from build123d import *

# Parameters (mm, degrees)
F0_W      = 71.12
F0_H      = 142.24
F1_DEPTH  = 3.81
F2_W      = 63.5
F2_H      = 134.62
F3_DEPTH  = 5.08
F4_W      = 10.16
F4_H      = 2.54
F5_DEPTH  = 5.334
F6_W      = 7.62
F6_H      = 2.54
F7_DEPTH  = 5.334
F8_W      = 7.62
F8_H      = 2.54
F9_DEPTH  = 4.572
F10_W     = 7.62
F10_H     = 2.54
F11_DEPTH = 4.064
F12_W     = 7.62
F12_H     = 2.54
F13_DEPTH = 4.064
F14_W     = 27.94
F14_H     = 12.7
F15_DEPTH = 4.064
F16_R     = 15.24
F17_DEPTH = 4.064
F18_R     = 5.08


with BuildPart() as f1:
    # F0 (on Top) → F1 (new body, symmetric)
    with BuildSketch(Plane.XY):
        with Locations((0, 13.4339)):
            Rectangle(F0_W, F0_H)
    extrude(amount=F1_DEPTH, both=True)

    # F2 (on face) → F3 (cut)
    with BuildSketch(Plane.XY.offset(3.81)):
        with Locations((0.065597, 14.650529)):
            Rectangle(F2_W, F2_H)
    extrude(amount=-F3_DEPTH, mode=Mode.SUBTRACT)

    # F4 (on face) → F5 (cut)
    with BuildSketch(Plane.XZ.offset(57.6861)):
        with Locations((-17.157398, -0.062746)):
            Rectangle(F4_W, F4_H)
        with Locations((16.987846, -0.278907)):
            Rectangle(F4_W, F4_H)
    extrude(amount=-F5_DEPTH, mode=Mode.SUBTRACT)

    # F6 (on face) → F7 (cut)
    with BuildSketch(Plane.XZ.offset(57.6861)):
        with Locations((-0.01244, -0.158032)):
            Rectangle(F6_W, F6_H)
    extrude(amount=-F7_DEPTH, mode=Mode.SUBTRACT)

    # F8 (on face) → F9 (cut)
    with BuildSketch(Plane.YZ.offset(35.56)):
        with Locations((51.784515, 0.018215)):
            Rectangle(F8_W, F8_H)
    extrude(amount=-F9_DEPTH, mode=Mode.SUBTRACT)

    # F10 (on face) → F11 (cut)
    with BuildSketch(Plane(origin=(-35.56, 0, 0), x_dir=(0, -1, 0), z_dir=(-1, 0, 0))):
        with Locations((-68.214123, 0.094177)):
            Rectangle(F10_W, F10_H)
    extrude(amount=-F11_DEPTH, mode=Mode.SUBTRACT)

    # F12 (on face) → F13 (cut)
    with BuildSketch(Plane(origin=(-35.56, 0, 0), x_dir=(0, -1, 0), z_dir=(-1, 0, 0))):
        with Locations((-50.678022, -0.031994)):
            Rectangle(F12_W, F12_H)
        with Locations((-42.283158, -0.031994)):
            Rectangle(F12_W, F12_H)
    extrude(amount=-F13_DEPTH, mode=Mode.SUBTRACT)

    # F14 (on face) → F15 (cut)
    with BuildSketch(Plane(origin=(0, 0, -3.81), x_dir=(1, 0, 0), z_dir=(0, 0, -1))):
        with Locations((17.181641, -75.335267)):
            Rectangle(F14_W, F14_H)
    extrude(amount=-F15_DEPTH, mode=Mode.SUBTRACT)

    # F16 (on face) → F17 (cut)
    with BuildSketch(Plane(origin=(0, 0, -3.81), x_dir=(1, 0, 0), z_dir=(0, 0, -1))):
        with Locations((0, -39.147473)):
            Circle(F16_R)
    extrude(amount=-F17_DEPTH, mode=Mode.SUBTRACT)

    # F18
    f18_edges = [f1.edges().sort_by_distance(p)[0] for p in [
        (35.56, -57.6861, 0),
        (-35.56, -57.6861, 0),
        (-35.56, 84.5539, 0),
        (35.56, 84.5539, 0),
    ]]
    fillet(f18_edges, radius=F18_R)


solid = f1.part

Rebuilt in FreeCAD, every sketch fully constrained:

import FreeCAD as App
import Part
import Sketcher
Q = App.Units.Quantity


def edges_at(feature, points):
    """Names of the edges that pass closest to the given points."""
    edges = feature.Shape.Edges
    near = lambda p: min(range(len(edges)), key=lambda i: edges[i].distToShape(Part.Vertex(*p))[0])
    return sorted({f"Edge{near(p) + 1}" for p in points})

doc = App.newDocument("Part")
body = doc.addObject("PartDesign::Body", "Body")

sketch1 = body.newObject("Sketcher::SketchObject", "Sketch")
sketch1.AttachmentSupport = (doc.getObject("XY_Plane"), [""])
sketch1.MapMode = "FlatFace"
sketch1.addGeometry(Part.LineSegment(App.Vector(-35.56, 84.5539, 0), App.Vector(-35.56, -57.6861, 0)), False)
sketch1.addGeometry(Part.LineSegment(App.Vector(-35.56, -57.6861, 0), App.Vector(35.56, -57.6861, 0)), False)
sketch1.addGeometry(Part.LineSegment(App.Vector(35.56, -57.6861, 0), App.Vector(35.56, 84.5539, 0)), False)
sketch1.addGeometry(Part.LineSegment(App.Vector(35.56, 84.5539, 0), App.Vector(-35.56, 84.5539, 0)), False)
sketch1.addConstraint(Sketcher.Constraint("Coincident", 0, 2, 1, 1))
sketch1.addConstraint(Sketcher.Constraint("Coincident", 1, 2, 2, 1))
sketch1.addConstraint(Sketcher.Constraint("Coincident", 2, 2, 3, 1))
sketch1.addConstraint(Sketcher.Constraint("Coincident", 3, 2, 0, 1))
sketch1.addConstraint(Sketcher.Constraint("Vertical", 0))
sketch1.addConstraint(Sketcher.Constraint("Horizontal", 1))
sketch1.addConstraint(Sketcher.Constraint("Vertical", 2))
sketch1.addConstraint(Sketcher.Constraint("Horizontal", 3))
sketch1.addConstraint(Sketcher.Constraint("DistanceX", 1, 1, 1, 2, Q("2.8 in")))
sketch1.addConstraint(Sketcher.Constraint("DistanceY", 0, 2, 0, 1, Q("5.6 in")))
sketch1.addConstraint(Sketcher.Constraint("DistanceX", 0, 2, -1, 1, Q("1.4 in")))
sketch1.addConstraint(Sketcher.Constraint("DistanceY", 0, 2, -1, 1, 57.6861))
pad1 = body.newObject("PartDesign::Pad", "Pad")
pad1.Profile = sketch1
pad1.Length = Q("0.3 in")
pad1.Midplane = True

sketch2 = body.newObject("Sketcher::SketchObject", "Sketch001")
sketch2.AttachmentSupport = (doc.getObject("XY_Plane"), [""])
sketch2.MapMode = "FlatFace"
sketch2.AttachmentOffset = App.Placement(App.Vector(0, 0, 0.15 * 25.4), App.Rotation())
sketch2.addGeometry(Part.LineSegment(App.Vector(-31.684403, 81.960529, 0), App.Vector(-31.684403, -52.659471, 0)), False)
sketch2.addGeometry(Part.LineSegment(App.Vector(-31.684403, -52.659471, 0), App.Vector(31.815597, -52.659471, 0)), False)
sketch2.addGeometry(Part.LineSegment(App.Vector(31.815597, -52.659471, 0), App.Vector(31.815597, 81.960529, 0)), False)
sketch2.addGeometry(Part.LineSegment(App.Vector(31.815597, 81.960529, 0), App.Vector(-31.684403, 81.960529, 0)), False)
sketch2.addConstraint(Sketcher.Constraint("Coincident", 0, 2, 1, 1))
sketch2.addConstraint(Sketcher.Constraint("Coincident", 1, 2, 2, 1))
sketch2.addConstraint(Sketcher.Constraint("Coincident", 2, 2, 3, 1))
sketch2.addConstraint(Sketcher.Constraint("Coincident", 3, 2, 0, 1))
sketch2.addConstraint(Sketcher.Constraint("Vertical", 0))
sketch2.addConstraint(Sketcher.Constraint("Horizontal", 1))
sketch2.addConstraint(Sketcher.Constraint("Vertical", 2))
sketch2.addConstraint(Sketcher.Constraint("Horizontal", 3))
sketch2.addConstraint(Sketcher.Constraint("DistanceX", 1, 1, 1, 2, Q("2.5 in")))
sketch2.addConstraint(Sketcher.Constraint("DistanceY", 0, 2, 0, 1, Q("5.3 in")))
sketch2.addConstraint(Sketcher.Constraint("DistanceY", 0, 2, -1, 1, 52.659471))
sketch2.addConstraint(Sketcher.Constraint("DistanceX", 0, 2, -1, 1, 31.684403))
pocket1 = body.newObject("PartDesign::Pocket", "Pocket")
pocket1.Profile = sketch2
pocket1.Length = Q("0.2 in")

sketch3 = body.newObject("Sketcher::SketchObject", "Sketch002")
sketch3.AttachmentSupport = (doc.getObject("XZ_Plane"), [""])
sketch3.MapMode = "FlatFace"
sketch3.AttachmentOffset = App.Placement(App.Vector(0, 0, 57.6861), App.Rotation())
sketch3.addGeometry(Part.LineSegment(App.Vector(-22.237398, 1.207254, 0), App.Vector(-22.237398, -1.332746, 0)), False)
sketch3.addGeometry(Part.LineSegment(App.Vector(-22.237398, -1.332746, 0), App.Vector(-12.077398, -1.332746, 0)), False)
sketch3.addGeometry(Part.LineSegment(App.Vector(-12.077398, -1.332746, 0), App.Vector(-12.077398, 1.207254, 0)), False)
sketch3.addGeometry(Part.LineSegment(App.Vector(-12.077398, 1.207254, 0), App.Vector(-22.237398, 1.207254, 0)), False)
sketch3.addGeometry(Part.LineSegment(App.Vector(11.907846, 0.991093, 0), App.Vector(11.907846, -1.548907, 0)), False)
sketch3.addGeometry(Part.LineSegment(App.Vector(11.907846, -1.548907, 0), App.Vector(22.067846, -1.548907, 0)), False)
sketch3.addGeometry(Part.LineSegment(App.Vector(22.067846, -1.548907, 0), App.Vector(22.067846, 0.991093, 0)), False)
sketch3.addGeometry(Part.LineSegment(App.Vector(22.067846, 0.991093, 0), App.Vector(11.907846, 0.991093, 0)), False)
sketch3.addConstraint(Sketcher.Constraint("Coincident", 0, 2, 1, 1))
sketch3.addConstraint(Sketcher.Constraint("Coincident", 1, 2, 2, 1))
sketch3.addConstraint(Sketcher.Constraint("Coincident", 2, 2, 3, 1))
sketch3.addConstraint(Sketcher.Constraint("Coincident", 3, 2, 0, 1))
sketch3.addConstraint(Sketcher.Constraint("Coincident", 4, 2, 5, 1))
sketch3.addConstraint(Sketcher.Constraint("Coincident", 5, 2, 6, 1))
sketch3.addConstraint(Sketcher.Constraint("Coincident", 6, 2, 7, 1))
sketch3.addConstraint(Sketcher.Constraint("Coincident", 7, 2, 4, 1))
sketch3.addConstraint(Sketcher.Constraint("Vertical", 0))
sketch3.addConstraint(Sketcher.Constraint("Horizontal", 1))
sketch3.addConstraint(Sketcher.Constraint("Vertical", 2))
sketch3.addConstraint(Sketcher.Constraint("Horizontal", 3))
sketch3.addConstraint(Sketcher.Constraint("Vertical", 4))
sketch3.addConstraint(Sketcher.Constraint("Horizontal", 5))
sketch3.addConstraint(Sketcher.Constraint("Vertical", 6))
sketch3.addConstraint(Sketcher.Constraint("Horizontal", 7))
sketch3.addConstraint(Sketcher.Constraint("Equal", 3, 5))
sketch3.addConstraint(Sketcher.Constraint("Equal", 2, 4))
sketch3.addConstraint(Sketcher.Constraint("DistanceX", 1, 1, 1, 2, Q("0.4 in")))
sketch3.addConstraint(Sketcher.Constraint("DistanceY", 0, 2, 0, 1, Q("0.1 in")))
sketch3.addConstraint(Sketcher.Constraint("DistanceY", 4, 2, 1, 2, 0.216161))
sketch3.addConstraint(Sketcher.Constraint("DistanceX", 0, 2, -1, 1, 22.237398))
sketch3.addConstraint(Sketcher.Constraint("DistanceY", 0, 2, -1, 1, 1.332746))
sketch3.addConstraint(Sketcher.Constraint("DistanceX", -1, 1, 4, 2, 11.907846))
pocket2 = body.newObject("PartDesign::Pocket", "Pocket001")
pocket2.Profile = sketch3
pocket2.Length = Q("0.21 in")

sketch4 = body.newObject("Sketcher::SketchObject", "Sketch003")
sketch4.AttachmentSupport = (doc.getObject("XZ_Plane"), [""])
sketch4.MapMode = "FlatFace"
sketch4.AttachmentOffset = App.Placement(App.Vector(0, 0, 57.6861), App.Rotation())
sketch4.addGeometry(Part.LineSegment(App.Vector(-3.82244, 1.111968, 0), App.Vector(-3.82244, -1.428032, 0)), False)
sketch4.addGeometry(Part.LineSegment(App.Vector(-3.82244, -1.428032, 0), App.Vector(3.79756, -1.428032, 0)), False)
sketch4.addGeometry(Part.LineSegment(App.Vector(3.79756, -1.428032, 0), App.Vector(3.79756, 1.111968, 0)), False)
sketch4.addGeometry(Part.LineSegment(App.Vector(3.79756, 1.111968, 0), App.Vector(-3.82244, 1.111968, 0)), False)
sketch4.addConstraint(Sketcher.Constraint("Coincident", 0, 2, 1, 1))
sketch4.addConstraint(Sketcher.Constraint("Coincident", 1, 2, 2, 1))
sketch4.addConstraint(Sketcher.Constraint("Coincident", 2, 2, 3, 1))
sketch4.addConstraint(Sketcher.Constraint("Coincident", 3, 2, 0, 1))
sketch4.addConstraint(Sketcher.Constraint("Vertical", 0))
sketch4.addConstraint(Sketcher.Constraint("Horizontal", 1))
sketch4.addConstraint(Sketcher.Constraint("Vertical", 2))
sketch4.addConstraint(Sketcher.Constraint("Horizontal", 3))
sketch4.addConstraint(Sketcher.Constraint("DistanceX", 1, 1, 1, 2, Q("0.3 in")))
sketch4.addConstraint(Sketcher.Constraint("DistanceY", 0, 2, 0, 1, Q("0.1 in")))
sketch4.addConstraint(Sketcher.Constraint("DistanceX", 0, 2, -1, 1, 3.82244))
sketch4.addConstraint(Sketcher.Constraint("DistanceY", -1, 1, 2, 2, 1.111968))
pocket3 = body.newObject("PartDesign::Pocket", "Pocket002")
pocket3.Profile = sketch4
pocket3.Length = Q("0.21 in")

sketch5 = body.newObject("Sketcher::SketchObject", "Sketch004")
sketch5.AttachmentSupport = (doc.getObject("YZ_Plane"), [""])
sketch5.MapMode = "FlatFace"
sketch5.AttachmentOffset = App.Placement(App.Vector(0, 0, 1.4 * 25.4), App.Rotation())
sketch5.addGeometry(Part.LineSegment(App.Vector(47.974515, 1.288215, 0), App.Vector(47.974515, -1.251785, 0)), False)
sketch5.addGeometry(Part.LineSegment(App.Vector(47.974515, -1.251785, 0), App.Vector(55.594515, -1.251785, 0)), False)
sketch5.addGeometry(Part.LineSegment(App.Vector(55.594515, -1.251785, 0), App.Vector(55.594515, 1.288215, 0)), False)
sketch5.addGeometry(Part.LineSegment(App.Vector(55.594515, 1.288215, 0), App.Vector(47.974515, 1.288215, 0)), False)
sketch5.addConstraint(Sketcher.Constraint("Coincident", 0, 2, 1, 1))
sketch5.addConstraint(Sketcher.Constraint("Coincident", 1, 2, 2, 1))
sketch5.addConstraint(Sketcher.Constraint("Coincident", 2, 2, 3, 1))
sketch5.addConstraint(Sketcher.Constraint("Coincident", 3, 2, 0, 1))
sketch5.addConstraint(Sketcher.Constraint("Vertical", 0))
sketch5.addConstraint(Sketcher.Constraint("Horizontal", 1))
sketch5.addConstraint(Sketcher.Constraint("Vertical", 2))
sketch5.addConstraint(Sketcher.Constraint("Horizontal", 3))
sketch5.addConstraint(Sketcher.Constraint("DistanceX", 1, 1, 1, 2, Q("0.3 in")))
sketch5.addConstraint(Sketcher.Constraint("DistanceY", 0, 2, 0, 1, Q("0.1 in")))
sketch5.addConstraint(Sketcher.Constraint("DistanceX", -1, 1, 0, 2, 47.974515))
sketch5.addConstraint(Sketcher.Constraint("DistanceY", 0, 2, -1, 1, 1.251785))
pocket4 = body.newObject("PartDesign::Pocket", "Pocket003")
pocket4.Profile = sketch5
pocket4.Length = Q("0.18 in")

sketch6 = body.newObject("Sketcher::SketchObject", "Sketch005")
sketch6.AttachmentSupport = (doc.getObject("YZ_Plane"), [""])
sketch6.MapMode = "FlatFace"
sketch6.AttachmentOffset = App.Placement(App.Vector(0, 0, -1.4 * 25.4), App.Rotation())
sketch6.addGeometry(Part.LineSegment(App.Vector(72.024123, 1.364177, 0), App.Vector(72.024123, -1.175823, 0)), False)
sketch6.addGeometry(Part.LineSegment(App.Vector(72.024123, -1.175823, 0), App.Vector(64.404123, -1.175823, 0)), False)
sketch6.addGeometry(Part.LineSegment(App.Vector(64.404123, -1.175823, 0), App.Vector(64.404123, 1.364177, 0)), False)
sketch6.addGeometry(Part.LineSegment(App.Vector(64.404123, 1.364177, 0), App.Vector(72.024123, 1.364177, 0)), False)
sketch6.addConstraint(Sketcher.Constraint("Coincident", 0, 2, 1, 1))
sketch6.addConstraint(Sketcher.Constraint("Coincident", 1, 2, 2, 1))
sketch6.addConstraint(Sketcher.Constraint("Coincident", 2, 2, 3, 1))
sketch6.addConstraint(Sketcher.Constraint("Coincident", 3, 2, 0, 1))
sketch6.addConstraint(Sketcher.Constraint("Vertical", 0))
sketch6.addConstraint(Sketcher.Constraint("Horizontal", 1))
sketch6.addConstraint(Sketcher.Constraint("Vertical", 2))
sketch6.addConstraint(Sketcher.Constraint("Horizontal", 3))
sketch6.addConstraint(Sketcher.Constraint("DistanceX", 1, 2, 1, 1, Q("0.3 in")))
sketch6.addConstraint(Sketcher.Constraint("DistanceY", 0, 2, 0, 1, Q("0.1 in")))
sketch6.addConstraint(Sketcher.Constraint("DistanceX", -1, 1, 0, 2, 72.024123))
sketch6.addConstraint(Sketcher.Constraint("DistanceY", 0, 2, -1, 1, 1.175823))
pocket5 = body.newObject("PartDesign::Pocket", "Pocket004")
pocket5.Profile = sketch6
pocket5.Length = Q("0.16 in")
pocket5.Reversed = True

sketch7 = body.newObject("Sketcher::SketchObject", "Sketch006")
sketch7.AttachmentSupport = (doc.getObject("YZ_Plane"), [""])
sketch7.MapMode = "FlatFace"
sketch7.AttachmentOffset = App.Placement(App.Vector(0, 0, -1.4 * 25.4), App.Rotation())
sketch7.addGeometry(Part.LineSegment(App.Vector(54.488022, 1.238006, 0), App.Vector(54.488022, -1.301994, 0)), False)
sketch7.addGeometry(Part.LineSegment(App.Vector(54.488022, -1.301994, 0), App.Vector(46.868022, -1.301994, 0)), False)
sketch7.addGeometry(Part.LineSegment(App.Vector(46.868022, -1.301994, 0), App.Vector(46.868022, 1.238006, 0)), False)
sketch7.addGeometry(Part.LineSegment(App.Vector(46.868022, 1.238006, 0), App.Vector(54.488022, 1.238006, 0)), False)
sketch7.addGeometry(Part.LineSegment(App.Vector(46.093158, 1.238006, 0), App.Vector(46.093158, -1.301994, 0)), False)
sketch7.addGeometry(Part.LineSegment(App.Vector(46.093158, -1.301994, 0), App.Vector(38.473158, -1.301994, 0)), False)
sketch7.addGeometry(Part.LineSegment(App.Vector(38.473158, -1.301994, 0), App.Vector(38.473158, 1.238006, 0)), False)
sketch7.addGeometry(Part.LineSegment(App.Vector(38.473158, 1.238006, 0), App.Vector(46.093158, 1.238006, 0)), False)
sketch7.addConstraint(Sketcher.Constraint("Coincident", 0, 2, 1, 1))
sketch7.addConstraint(Sketcher.Constraint("Coincident", 1, 2, 2, 1))
sketch7.addConstraint(Sketcher.Constraint("Coincident", 2, 2, 3, 1))
sketch7.addConstraint(Sketcher.Constraint("Coincident", 3, 2, 0, 1))
sketch7.addConstraint(Sketcher.Constraint("Coincident", 4, 2, 5, 1))
sketch7.addConstraint(Sketcher.Constraint("Coincident", 5, 2, 6, 1))
sketch7.addConstraint(Sketcher.Constraint("Coincident", 6, 2, 7, 1))
sketch7.addConstraint(Sketcher.Constraint("Coincident", 7, 2, 4, 1))
sketch7.addConstraint(Sketcher.Constraint("Vertical", 0))
sketch7.addConstraint(Sketcher.Constraint("Horizontal", 1))
sketch7.addConstraint(Sketcher.Constraint("Vertical", 2))
sketch7.addConstraint(Sketcher.Constraint("Horizontal", 3))
sketch7.addConstraint(Sketcher.Constraint("Vertical", 4))
sketch7.addConstraint(Sketcher.Constraint("Horizontal", 5))
sketch7.addConstraint(Sketcher.Constraint("Vertical", 6))
sketch7.addConstraint(Sketcher.Constraint("Horizontal", 7))
sketch7.addConstraint(Sketcher.Constraint("Horizontal", 1, 2, 4, 2))
sketch7.addConstraint(Sketcher.Constraint("Horizontal", 3, 2, 6, 2))
sketch7.addConstraint(Sketcher.Constraint("Equal", 3, 5))
sketch7.addConstraint(Sketcher.Constraint("DistanceX", 1, 2, 1, 1, Q("0.3 in")))
sketch7.addConstraint(Sketcher.Constraint("DistanceY", 0, 2, 0, 1, Q("0.1 in")))
sketch7.addConstraint(Sketcher.Constraint("DistanceX", -1, 1, 4, 2, 46.093158))
sketch7.addConstraint(Sketcher.Constraint("DistanceX", -1, 1, 0, 2, 54.488022))
sketch7.addConstraint(Sketcher.Constraint("DistanceY", 0, 2, -1, 1, 1.301994))
pocket6 = body.newObject("PartDesign::Pocket", "Pocket005")
pocket6.Profile = sketch7
pocket6.Length = Q("0.16 in")
pocket6.Reversed = True

sketch8 = body.newObject("Sketcher::SketchObject", "Sketch007")
sketch8.AttachmentSupport = (doc.getObject("XY_Plane"), [""])
sketch8.MapMode = "FlatFace"
sketch8.AttachmentOffset = App.Placement(App.Vector(0, 0, -0.15 * 25.4), App.Rotation())
sketch8.addGeometry(Part.LineSegment(App.Vector(3.211641, 68.985267, 0), App.Vector(3.211641, 81.685267, 0)), False)
sketch8.addGeometry(Part.LineSegment(App.Vector(3.211641, 81.685267, 0), App.Vector(31.151641, 81.685267, 0)), False)
sketch8.addGeometry(Part.LineSegment(App.Vector(31.151641, 81.685267, 0), App.Vector(31.151641, 68.985267, 0)), False)
sketch8.addGeometry(Part.LineSegment(App.Vector(31.151641, 68.985267, 0), App.Vector(3.211641, 68.985267, 0)), False)
sketch8.addConstraint(Sketcher.Constraint("Coincident", 0, 2, 1, 1))
sketch8.addConstraint(Sketcher.Constraint("Coincident", 1, 2, 2, 1))
sketch8.addConstraint(Sketcher.Constraint("Coincident", 2, 2, 3, 1))
sketch8.addConstraint(Sketcher.Constraint("Coincident", 3, 2, 0, 1))
sketch8.addConstraint(Sketcher.Constraint("Vertical", 0))
sketch8.addConstraint(Sketcher.Constraint("Horizontal", 1))
sketch8.addConstraint(Sketcher.Constraint("Vertical", 2))
sketch8.addConstraint(Sketcher.Constraint("Horizontal", 3))
sketch8.addConstraint(Sketcher.Constraint("DistanceX", 1, 1, 1, 2, Q("1.1 in")))
sketch8.addConstraint(Sketcher.Constraint("DistanceY", 0, 1, 0, 2, Q("0.5 in")))
sketch8.addConstraint(Sketcher.Constraint("DistanceX", -1, 1, 0, 2, 3.211641))
sketch8.addConstraint(Sketcher.Constraint("DistanceY", -1, 1, 0, 2, 81.685267))
pocket7 = body.newObject("PartDesign::Pocket", "Pocket006")
pocket7.Profile = sketch8
pocket7.Length = Q("0.16 in")
pocket7.Reversed = True

sketch9 = body.newObject("Sketcher::SketchObject", "Sketch008")
sketch9.AttachmentSupport = (doc.getObject("XY_Plane"), [""])
sketch9.MapMode = "FlatFace"
sketch9.AttachmentOffset = App.Placement(App.Vector(0, 0, -0.15 * 25.4), App.Rotation())
sketch9.addGeometry(Part.Circle(App.Vector(0, 39.147473, 0), App.Vector(0, 0, 1), 15.24), False)
sketch9.addConstraint(Sketcher.Constraint("PointOnObject", 0, 3, -2))
sketch9.addConstraint(Sketcher.Constraint("Diameter", 0, Q("1.2 in")))
sketch9.addConstraint(Sketcher.Constraint("DistanceY", -1, 1, 0, 3, 39.147473))
pocket8 = body.newObject("PartDesign::Pocket", "Pocket007")
pocket8.Profile = sketch9
pocket8.Length = Q("0.16 in")
pocket8.Reversed = True
doc.recompute()

fillet = body.newObject("PartDesign::Fillet", "Fillet")
fillet.Base = (pocket8, edges_at(pocket8, [
    (35.56, -57.686, 0),
    (-35.56, -57.686, 0),
    (-35.56, 84.554, 0),
    (35.56, 84.554, 0),
]))
fillet.Radius = Q("0.2 in")

doc.recompute()
